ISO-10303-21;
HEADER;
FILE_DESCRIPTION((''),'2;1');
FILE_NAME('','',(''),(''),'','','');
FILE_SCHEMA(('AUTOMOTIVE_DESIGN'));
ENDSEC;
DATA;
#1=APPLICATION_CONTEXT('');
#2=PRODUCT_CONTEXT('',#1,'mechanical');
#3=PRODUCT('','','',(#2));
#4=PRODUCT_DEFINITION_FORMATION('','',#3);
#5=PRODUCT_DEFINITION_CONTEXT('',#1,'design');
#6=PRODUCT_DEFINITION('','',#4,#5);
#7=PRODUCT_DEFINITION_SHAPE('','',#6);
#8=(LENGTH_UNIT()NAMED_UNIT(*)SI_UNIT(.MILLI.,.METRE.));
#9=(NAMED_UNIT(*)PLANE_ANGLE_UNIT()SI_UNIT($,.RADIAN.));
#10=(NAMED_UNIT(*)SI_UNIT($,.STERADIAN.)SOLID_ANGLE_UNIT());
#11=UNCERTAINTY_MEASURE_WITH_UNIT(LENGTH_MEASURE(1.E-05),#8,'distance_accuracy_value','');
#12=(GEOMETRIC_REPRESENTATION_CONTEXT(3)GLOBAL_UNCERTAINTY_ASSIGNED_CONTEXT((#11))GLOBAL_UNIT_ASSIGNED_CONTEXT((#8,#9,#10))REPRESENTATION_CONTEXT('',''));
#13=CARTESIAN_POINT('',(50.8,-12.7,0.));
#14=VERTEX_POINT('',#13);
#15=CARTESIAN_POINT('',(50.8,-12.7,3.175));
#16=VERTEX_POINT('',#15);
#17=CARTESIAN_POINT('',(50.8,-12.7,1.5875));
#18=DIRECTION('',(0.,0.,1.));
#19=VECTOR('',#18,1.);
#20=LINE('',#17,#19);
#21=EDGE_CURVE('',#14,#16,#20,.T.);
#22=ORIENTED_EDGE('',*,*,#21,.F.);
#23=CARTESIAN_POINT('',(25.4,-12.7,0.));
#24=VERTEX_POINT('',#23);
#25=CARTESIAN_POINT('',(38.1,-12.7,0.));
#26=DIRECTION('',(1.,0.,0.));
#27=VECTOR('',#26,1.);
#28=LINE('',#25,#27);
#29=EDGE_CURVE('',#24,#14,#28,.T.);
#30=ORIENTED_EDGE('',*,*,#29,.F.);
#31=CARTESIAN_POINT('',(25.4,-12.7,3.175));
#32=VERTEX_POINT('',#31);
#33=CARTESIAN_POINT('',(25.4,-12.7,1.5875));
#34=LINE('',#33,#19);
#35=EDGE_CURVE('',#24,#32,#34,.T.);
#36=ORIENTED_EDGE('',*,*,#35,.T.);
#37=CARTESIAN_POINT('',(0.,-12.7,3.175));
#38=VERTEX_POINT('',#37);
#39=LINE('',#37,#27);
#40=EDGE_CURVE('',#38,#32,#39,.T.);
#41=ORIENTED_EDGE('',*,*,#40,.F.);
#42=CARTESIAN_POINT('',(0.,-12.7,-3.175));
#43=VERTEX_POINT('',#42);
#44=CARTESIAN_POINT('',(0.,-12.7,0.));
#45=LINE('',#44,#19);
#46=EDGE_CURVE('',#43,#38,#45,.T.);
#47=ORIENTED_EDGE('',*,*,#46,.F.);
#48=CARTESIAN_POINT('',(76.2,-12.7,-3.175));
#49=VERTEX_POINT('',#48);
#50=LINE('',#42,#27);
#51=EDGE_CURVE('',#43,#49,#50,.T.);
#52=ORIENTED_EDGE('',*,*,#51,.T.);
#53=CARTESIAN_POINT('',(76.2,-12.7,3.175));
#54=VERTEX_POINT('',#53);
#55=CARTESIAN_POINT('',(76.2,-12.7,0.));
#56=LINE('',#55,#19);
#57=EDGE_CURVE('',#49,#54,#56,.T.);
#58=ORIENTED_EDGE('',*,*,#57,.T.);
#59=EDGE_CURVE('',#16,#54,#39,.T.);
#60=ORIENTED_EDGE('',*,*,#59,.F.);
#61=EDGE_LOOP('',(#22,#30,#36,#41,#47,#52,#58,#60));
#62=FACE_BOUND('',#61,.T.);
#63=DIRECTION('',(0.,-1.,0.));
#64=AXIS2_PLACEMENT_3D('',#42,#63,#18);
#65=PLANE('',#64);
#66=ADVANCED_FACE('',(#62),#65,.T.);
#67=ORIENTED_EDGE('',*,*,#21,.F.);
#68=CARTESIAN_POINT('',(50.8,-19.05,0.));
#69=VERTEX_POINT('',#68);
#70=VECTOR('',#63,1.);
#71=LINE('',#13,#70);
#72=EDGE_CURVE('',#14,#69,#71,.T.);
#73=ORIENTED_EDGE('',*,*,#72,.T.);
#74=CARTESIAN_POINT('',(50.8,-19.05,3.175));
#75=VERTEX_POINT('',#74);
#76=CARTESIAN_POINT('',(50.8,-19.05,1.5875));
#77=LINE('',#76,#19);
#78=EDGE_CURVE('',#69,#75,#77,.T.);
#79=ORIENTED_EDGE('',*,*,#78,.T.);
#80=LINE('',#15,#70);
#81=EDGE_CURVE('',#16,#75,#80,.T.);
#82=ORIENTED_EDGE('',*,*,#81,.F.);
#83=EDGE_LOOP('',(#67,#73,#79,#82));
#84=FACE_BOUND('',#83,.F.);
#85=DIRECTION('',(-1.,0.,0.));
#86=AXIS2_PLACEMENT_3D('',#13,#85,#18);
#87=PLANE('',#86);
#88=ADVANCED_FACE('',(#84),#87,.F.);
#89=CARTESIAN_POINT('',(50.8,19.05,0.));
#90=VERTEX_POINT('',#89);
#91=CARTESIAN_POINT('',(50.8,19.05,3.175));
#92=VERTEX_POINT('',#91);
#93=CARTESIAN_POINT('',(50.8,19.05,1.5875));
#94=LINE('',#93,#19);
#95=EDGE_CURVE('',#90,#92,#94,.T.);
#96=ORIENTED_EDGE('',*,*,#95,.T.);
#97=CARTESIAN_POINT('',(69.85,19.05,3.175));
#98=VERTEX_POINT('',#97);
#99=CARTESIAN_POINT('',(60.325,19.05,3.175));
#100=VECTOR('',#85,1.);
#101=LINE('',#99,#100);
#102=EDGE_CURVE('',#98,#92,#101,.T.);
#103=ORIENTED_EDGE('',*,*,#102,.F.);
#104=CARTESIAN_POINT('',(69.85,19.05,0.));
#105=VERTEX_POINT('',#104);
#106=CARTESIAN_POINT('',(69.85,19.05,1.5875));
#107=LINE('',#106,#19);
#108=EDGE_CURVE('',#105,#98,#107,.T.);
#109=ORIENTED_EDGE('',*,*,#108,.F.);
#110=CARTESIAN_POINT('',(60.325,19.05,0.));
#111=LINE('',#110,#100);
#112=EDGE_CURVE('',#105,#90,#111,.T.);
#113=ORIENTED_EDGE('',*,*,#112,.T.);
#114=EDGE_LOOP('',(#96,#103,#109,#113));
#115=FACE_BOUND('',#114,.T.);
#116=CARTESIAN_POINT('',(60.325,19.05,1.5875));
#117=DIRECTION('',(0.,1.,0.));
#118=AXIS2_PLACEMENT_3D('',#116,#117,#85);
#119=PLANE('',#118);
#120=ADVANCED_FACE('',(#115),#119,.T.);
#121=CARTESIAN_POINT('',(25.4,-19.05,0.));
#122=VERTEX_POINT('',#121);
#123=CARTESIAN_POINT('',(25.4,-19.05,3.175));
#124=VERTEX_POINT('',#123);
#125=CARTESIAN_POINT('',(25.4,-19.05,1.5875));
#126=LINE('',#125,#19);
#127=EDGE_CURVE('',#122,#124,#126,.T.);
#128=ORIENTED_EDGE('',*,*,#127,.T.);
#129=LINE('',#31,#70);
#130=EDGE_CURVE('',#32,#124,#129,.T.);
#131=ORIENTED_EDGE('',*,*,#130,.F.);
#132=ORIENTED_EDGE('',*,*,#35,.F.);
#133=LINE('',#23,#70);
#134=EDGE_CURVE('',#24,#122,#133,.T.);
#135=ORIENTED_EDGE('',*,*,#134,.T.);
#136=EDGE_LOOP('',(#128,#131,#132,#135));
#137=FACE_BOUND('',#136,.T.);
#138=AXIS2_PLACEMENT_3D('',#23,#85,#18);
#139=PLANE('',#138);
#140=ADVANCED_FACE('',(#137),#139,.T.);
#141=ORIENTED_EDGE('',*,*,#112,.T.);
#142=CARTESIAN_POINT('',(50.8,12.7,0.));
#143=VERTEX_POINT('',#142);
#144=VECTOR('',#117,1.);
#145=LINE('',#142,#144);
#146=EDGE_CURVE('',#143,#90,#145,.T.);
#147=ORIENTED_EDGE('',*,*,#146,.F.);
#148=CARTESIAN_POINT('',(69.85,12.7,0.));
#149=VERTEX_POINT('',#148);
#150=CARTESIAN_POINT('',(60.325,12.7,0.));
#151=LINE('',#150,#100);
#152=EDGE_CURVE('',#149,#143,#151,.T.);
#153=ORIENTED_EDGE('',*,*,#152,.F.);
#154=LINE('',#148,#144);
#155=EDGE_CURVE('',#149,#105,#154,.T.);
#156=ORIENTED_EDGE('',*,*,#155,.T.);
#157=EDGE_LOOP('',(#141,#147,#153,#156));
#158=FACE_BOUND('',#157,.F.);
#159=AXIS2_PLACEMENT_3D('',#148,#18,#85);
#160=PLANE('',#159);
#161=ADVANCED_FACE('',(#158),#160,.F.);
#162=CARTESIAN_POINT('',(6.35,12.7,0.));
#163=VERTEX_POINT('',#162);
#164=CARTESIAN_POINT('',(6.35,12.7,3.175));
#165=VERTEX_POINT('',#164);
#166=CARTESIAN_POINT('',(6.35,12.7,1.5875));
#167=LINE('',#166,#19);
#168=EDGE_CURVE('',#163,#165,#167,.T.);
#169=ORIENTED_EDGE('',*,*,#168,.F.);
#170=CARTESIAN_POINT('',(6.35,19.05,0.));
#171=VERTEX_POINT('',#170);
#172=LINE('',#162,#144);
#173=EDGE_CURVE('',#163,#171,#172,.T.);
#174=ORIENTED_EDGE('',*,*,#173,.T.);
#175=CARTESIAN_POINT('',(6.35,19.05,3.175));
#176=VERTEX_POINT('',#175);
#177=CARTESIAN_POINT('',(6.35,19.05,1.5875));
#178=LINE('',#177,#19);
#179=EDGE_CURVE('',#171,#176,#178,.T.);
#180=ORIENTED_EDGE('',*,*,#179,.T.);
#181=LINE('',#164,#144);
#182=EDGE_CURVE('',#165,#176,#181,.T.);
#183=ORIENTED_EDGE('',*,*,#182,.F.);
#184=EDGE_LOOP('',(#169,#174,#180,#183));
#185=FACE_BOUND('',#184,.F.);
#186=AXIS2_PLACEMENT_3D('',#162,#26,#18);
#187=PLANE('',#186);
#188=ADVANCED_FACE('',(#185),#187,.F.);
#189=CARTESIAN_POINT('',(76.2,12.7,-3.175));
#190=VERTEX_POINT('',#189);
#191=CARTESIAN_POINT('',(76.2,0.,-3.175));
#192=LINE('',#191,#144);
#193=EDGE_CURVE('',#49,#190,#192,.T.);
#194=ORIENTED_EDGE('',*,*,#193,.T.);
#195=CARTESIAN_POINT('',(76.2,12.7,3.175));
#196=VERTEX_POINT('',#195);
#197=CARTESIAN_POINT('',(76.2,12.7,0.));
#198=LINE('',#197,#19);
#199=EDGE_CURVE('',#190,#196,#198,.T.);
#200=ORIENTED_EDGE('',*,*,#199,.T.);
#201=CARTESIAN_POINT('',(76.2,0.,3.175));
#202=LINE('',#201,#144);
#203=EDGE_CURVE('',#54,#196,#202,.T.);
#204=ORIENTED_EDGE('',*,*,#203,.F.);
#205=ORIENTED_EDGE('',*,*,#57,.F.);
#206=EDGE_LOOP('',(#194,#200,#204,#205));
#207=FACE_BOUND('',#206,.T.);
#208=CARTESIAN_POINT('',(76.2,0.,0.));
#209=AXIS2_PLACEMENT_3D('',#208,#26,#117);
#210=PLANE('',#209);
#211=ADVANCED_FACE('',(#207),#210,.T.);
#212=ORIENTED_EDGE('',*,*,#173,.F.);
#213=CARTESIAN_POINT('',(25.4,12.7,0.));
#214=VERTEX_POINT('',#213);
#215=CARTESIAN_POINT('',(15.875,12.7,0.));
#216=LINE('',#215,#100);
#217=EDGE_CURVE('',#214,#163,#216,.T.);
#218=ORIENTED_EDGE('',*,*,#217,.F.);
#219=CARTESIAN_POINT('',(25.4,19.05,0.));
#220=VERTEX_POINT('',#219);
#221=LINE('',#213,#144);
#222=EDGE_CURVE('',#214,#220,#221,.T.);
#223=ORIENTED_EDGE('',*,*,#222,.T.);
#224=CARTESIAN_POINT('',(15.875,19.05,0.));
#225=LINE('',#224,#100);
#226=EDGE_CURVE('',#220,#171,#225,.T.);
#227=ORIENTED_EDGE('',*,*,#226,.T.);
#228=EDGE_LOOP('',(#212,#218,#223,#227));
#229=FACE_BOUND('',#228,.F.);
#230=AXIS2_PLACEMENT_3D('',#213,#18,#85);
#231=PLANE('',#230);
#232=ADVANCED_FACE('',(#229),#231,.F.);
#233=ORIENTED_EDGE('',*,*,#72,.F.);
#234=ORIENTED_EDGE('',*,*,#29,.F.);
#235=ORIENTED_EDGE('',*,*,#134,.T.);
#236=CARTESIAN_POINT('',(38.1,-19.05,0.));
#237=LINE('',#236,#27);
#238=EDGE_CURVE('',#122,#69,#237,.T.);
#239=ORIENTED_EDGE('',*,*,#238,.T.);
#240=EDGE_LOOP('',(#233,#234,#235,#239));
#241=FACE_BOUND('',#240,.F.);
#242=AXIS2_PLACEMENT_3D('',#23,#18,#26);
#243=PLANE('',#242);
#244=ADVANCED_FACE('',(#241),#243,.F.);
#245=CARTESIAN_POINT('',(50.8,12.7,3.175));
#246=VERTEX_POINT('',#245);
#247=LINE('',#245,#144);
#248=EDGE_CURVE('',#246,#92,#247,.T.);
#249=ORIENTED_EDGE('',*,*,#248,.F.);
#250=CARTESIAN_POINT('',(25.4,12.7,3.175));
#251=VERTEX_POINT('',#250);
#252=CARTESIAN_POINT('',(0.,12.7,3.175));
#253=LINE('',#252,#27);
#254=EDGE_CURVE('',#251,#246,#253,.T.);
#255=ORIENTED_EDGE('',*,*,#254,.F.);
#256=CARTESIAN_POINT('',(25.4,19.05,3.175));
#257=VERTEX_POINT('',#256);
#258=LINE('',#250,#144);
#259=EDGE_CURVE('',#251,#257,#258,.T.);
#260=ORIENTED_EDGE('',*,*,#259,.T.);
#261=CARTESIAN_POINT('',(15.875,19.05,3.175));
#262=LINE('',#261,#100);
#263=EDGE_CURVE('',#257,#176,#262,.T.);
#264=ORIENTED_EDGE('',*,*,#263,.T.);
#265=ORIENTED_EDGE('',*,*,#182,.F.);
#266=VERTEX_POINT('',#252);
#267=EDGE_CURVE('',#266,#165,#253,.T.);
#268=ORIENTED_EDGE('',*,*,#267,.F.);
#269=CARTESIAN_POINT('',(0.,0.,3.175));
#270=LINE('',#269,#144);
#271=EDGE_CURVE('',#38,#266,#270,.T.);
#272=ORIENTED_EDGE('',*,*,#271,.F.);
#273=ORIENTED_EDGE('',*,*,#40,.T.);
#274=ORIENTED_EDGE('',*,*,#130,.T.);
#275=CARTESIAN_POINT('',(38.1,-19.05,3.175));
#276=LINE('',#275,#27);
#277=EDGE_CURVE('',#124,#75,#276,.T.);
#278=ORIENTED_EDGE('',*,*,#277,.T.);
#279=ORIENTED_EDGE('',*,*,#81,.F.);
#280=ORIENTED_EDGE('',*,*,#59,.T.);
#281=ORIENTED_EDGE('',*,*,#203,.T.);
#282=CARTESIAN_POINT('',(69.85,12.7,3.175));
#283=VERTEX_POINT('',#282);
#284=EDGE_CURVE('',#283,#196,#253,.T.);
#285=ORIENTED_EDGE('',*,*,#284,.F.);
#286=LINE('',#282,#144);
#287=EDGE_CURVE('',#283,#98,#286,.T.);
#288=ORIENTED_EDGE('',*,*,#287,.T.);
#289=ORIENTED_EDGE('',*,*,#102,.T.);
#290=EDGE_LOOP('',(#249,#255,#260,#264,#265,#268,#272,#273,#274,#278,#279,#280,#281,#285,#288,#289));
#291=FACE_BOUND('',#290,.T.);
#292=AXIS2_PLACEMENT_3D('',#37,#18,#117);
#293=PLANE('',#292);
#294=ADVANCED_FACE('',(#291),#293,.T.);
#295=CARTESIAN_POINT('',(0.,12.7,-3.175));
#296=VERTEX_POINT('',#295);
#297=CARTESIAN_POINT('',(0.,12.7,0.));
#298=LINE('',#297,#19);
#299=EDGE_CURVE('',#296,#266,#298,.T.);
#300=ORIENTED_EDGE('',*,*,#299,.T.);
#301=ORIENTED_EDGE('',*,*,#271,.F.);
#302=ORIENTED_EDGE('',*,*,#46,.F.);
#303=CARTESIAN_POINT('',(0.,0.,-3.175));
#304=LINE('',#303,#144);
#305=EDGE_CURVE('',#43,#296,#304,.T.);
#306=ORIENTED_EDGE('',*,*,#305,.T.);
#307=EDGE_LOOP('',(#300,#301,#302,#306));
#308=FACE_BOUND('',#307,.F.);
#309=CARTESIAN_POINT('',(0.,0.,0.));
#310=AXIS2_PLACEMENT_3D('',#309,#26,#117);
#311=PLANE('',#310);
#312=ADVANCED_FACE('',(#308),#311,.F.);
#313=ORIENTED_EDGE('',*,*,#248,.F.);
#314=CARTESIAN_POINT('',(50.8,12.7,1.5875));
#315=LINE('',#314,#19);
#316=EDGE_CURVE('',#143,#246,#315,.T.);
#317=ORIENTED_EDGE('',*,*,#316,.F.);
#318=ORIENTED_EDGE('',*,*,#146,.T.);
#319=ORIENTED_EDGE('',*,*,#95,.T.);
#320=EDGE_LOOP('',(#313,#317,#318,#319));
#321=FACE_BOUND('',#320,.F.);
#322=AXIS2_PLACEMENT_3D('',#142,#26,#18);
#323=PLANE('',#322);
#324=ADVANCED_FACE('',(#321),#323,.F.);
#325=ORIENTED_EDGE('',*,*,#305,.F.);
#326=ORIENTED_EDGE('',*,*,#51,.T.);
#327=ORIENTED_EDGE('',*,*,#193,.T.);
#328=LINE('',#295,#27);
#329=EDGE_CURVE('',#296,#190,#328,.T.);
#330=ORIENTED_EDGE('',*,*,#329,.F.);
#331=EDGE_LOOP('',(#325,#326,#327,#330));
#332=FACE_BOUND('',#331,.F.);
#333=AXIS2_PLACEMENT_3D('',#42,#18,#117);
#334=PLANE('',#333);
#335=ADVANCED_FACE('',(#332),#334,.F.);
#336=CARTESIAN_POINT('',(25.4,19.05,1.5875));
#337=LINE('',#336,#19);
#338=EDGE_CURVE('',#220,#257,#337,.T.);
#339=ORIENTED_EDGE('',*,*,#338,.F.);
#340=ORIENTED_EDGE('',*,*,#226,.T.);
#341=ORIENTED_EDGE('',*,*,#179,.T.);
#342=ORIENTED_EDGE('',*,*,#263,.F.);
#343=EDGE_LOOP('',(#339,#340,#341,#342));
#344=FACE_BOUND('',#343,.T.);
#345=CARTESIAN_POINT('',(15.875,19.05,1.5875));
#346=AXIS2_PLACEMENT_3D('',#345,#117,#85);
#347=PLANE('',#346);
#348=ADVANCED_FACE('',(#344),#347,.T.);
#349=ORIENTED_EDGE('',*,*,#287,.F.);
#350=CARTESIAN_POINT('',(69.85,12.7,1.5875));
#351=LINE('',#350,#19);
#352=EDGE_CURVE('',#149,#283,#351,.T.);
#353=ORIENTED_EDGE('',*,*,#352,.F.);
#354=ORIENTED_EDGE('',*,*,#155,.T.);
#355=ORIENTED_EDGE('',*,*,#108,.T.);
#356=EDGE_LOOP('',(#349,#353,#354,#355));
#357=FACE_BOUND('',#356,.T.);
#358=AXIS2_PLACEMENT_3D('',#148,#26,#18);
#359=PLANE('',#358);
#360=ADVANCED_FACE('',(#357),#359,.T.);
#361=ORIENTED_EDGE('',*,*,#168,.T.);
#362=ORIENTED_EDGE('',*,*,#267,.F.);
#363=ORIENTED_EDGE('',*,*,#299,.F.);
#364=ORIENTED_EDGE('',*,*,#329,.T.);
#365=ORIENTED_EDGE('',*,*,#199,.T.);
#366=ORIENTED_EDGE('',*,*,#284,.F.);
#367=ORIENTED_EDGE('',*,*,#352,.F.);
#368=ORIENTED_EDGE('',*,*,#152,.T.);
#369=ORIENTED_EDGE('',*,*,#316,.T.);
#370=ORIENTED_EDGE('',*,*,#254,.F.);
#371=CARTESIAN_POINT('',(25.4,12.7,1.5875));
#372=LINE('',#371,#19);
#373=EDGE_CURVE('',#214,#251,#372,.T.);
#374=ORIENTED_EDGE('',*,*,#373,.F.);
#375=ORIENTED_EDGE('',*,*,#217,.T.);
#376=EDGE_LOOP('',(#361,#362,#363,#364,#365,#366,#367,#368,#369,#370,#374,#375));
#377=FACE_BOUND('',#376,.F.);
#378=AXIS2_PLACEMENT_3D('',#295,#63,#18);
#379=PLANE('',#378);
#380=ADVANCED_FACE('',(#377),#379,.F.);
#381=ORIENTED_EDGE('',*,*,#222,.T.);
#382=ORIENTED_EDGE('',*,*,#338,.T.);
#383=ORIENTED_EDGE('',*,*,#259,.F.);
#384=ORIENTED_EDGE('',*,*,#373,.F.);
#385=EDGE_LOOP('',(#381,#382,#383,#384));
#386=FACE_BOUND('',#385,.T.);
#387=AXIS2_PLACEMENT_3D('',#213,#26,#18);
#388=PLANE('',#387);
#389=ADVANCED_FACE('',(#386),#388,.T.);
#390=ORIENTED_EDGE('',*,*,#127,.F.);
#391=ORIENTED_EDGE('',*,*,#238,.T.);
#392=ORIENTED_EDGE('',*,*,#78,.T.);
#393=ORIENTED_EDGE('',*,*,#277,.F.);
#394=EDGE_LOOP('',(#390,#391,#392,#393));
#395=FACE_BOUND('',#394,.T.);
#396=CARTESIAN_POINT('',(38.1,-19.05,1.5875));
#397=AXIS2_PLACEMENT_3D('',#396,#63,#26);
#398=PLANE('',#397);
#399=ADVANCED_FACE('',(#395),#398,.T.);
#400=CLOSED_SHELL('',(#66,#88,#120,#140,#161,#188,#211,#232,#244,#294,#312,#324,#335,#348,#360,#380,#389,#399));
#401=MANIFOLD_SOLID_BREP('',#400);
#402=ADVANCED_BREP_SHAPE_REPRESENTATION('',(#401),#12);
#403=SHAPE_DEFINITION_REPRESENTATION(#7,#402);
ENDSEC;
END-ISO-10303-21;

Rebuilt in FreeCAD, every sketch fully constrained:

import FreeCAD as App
import Part
import Sketcher
Q = App.Units.Quantity


def add_polygon(sketch, points):
    """Adds a closed chain of lines whose ends are joined by coincident constraints."""
    first, n = sketch.GeometryCount, len(points)
    for a, b in zip(points, points[1:] + points[:1]):
        sketch.addGeometry(Part.LineSegment(App.Vector(*a, 0), App.Vector(*b, 0)), False)
    for i in range(n):
        sketch.addConstraint(Sketcher.Constraint("Coincident", first + i, 2, first + (i + 1) % n, 1))

doc = App.newDocument("Part")
body = doc.addObject("PartDesign::Body", "Body")

sketch1 = body.newObject("Sketcher::SketchObject", "Sketch")
sketch1.AttachmentSupport = (doc.getObject("YZ_Plane"), [""])
sketch1.MapMode = "FlatFace"
add_polygon(sketch1, [(-12.7, 3.175), (-12.7, -3.175), (12.7, -3.175), (12.7, 3.175)])
sketch1.addConstraint(Sketcher.Constraint("Vertical", 0))
sketch1.addConstraint(Sketcher.Constraint("Horizontal", 1))
sketch1.addConstraint(Sketcher.Constraint("Vertical", 2))
sketch1.addConstraint(Sketcher.Constraint("Horizontal", 3))
sketch1.addConstraint(Sketcher.Constraint("Symmetric", 0, 2, 2, 2, -1, 1))
sketch1.addConstraint(Sketcher.Constraint("DistanceX", 1, 1, 1, 2, Q("1 in")))
sketch1.addConstraint(Sketcher.Constraint("DistanceY", 0, 2, 0, 1, Q("0.25 in")))
pad1 = body.newObject("PartDesign::Pad", "Pad")
pad1.Profile = sketch1
pad1.Length = Q("3 in")

sketch2 = body.newObject("Sketcher::SketchObject", "Sketch001")
sketch2.AttachmentSupport = (doc.getObject("XZ_Plane"), [""])
sketch2.MapMode = "FlatFace"
sketch2.AttachmentOffset = App.Placement(App.Vector(0, 0, 0.5 * 25.4), App.Rotation())
add_polygon(sketch2, [(25.4, 3.175), (25.4, 0), (50.8, 0), (50.8, 3.175)])
sketch2.addConstraint(Sketcher.Constraint("Vertical", 0))
sketch2.addConstraint(Sketcher.Constraint("Horizontal", 1))
sketch2.addConstraint(Sketcher.Constraint("Vertical", 2))
sketch2.addConstraint(Sketcher.Constraint("Horizontal", 3))
sketch2.addConstraint(Sketcher.Constraint("PointOnObject", 0, 2, -1))
sketch2.addConstraint(Sketcher.Constraint("DistanceX", 1, 1, 1, 2, Q("1 in")))
sketch2.addConstraint(Sketcher.Constraint("DistanceX", -1, 1, 0, 2, Q("1 in")))
sketch2.addConstraint(Sketcher.Constraint("DistanceY", 0, 2, 0, 1, Q("0.125 in")))
pad2 = body.newObject("PartDesign::Pad", "Pad001")
pad2.Profile = sketch2
pad2.Length = Q("0.25 in")

sketch3 = body.newObject("Sketcher::SketchObject", "Sketch002")
sketch3.AttachmentSupport = (doc.getObject("XZ_Plane"), [""])
sketch3.MapMode = "FlatFace"
sketch3.AttachmentOffset = App.Placement(App.Vector(0, 0, -0.5 * 25.4), App.Rotation())
add_polygon(sketch3, [(69.85, 3.175), (69.85, 0), (50.8, 0), (50.8, 3.175)])
add_polygon(sketch3, [(25.4, 3.175), (25.4, 0), (6.35, 0), (6.35, 3.175)])
sketch3.addConstraint(Sketcher.Constraint("Vertical", 0))
sketch3.addConstraint(Sketcher.Constraint("Horizontal", 1))
sketch3.addConstraint(Sketcher.Constraint("Vertical", 2))
sketch3.addConstraint(Sketcher.Constraint("Horizontal", 3))
sketch3.addConstraint(Sketcher.Constraint("Vertical", 4))
sketch3.addConstraint(Sketcher.Constraint("Horizontal", 5))
sketch3.addConstraint(Sketcher.Constraint("Vertical", 6))
sketch3.addConstraint(Sketcher.Constraint("Horizontal", 7))
sketch3.addConstraint(Sketcher.Constraint("PointOnObject", 0, 2, -1))
sketch3.addConstraint(Sketcher.Constraint("PointOnObject", 4, 2, -1))
sketch3.addConstraint(Sketcher.Constraint("Horizontal", 3, 2, 6, 2))
sketch3.addConstraint(Sketcher.Constraint("Equal", 3, 5))
sketch3.addConstraint(Sketcher.Constraint("DistanceX", -1, 1, 1, 2, Q("2 in")))
sketch3.addConstraint(Sketcher.Constraint("DistanceX", -1, 1, 4, 2, Q("1 in")))
sketch3.addConstraint(Sketcher.Constraint("DistanceX", 1, 2, 1, 1, Q("0.75 in")))
sketch3.addConstraint(Sketcher.Constraint("DistanceY", 0, 2, 0, 1, Q("0.125 in")))
pad3 = body.newObject("PartDesign::Pad", "Pad002")
pad3.Profile = sketch3
pad3.Length = Q("0.25 in")
pad3.Reversed = True

doc.recompute()
